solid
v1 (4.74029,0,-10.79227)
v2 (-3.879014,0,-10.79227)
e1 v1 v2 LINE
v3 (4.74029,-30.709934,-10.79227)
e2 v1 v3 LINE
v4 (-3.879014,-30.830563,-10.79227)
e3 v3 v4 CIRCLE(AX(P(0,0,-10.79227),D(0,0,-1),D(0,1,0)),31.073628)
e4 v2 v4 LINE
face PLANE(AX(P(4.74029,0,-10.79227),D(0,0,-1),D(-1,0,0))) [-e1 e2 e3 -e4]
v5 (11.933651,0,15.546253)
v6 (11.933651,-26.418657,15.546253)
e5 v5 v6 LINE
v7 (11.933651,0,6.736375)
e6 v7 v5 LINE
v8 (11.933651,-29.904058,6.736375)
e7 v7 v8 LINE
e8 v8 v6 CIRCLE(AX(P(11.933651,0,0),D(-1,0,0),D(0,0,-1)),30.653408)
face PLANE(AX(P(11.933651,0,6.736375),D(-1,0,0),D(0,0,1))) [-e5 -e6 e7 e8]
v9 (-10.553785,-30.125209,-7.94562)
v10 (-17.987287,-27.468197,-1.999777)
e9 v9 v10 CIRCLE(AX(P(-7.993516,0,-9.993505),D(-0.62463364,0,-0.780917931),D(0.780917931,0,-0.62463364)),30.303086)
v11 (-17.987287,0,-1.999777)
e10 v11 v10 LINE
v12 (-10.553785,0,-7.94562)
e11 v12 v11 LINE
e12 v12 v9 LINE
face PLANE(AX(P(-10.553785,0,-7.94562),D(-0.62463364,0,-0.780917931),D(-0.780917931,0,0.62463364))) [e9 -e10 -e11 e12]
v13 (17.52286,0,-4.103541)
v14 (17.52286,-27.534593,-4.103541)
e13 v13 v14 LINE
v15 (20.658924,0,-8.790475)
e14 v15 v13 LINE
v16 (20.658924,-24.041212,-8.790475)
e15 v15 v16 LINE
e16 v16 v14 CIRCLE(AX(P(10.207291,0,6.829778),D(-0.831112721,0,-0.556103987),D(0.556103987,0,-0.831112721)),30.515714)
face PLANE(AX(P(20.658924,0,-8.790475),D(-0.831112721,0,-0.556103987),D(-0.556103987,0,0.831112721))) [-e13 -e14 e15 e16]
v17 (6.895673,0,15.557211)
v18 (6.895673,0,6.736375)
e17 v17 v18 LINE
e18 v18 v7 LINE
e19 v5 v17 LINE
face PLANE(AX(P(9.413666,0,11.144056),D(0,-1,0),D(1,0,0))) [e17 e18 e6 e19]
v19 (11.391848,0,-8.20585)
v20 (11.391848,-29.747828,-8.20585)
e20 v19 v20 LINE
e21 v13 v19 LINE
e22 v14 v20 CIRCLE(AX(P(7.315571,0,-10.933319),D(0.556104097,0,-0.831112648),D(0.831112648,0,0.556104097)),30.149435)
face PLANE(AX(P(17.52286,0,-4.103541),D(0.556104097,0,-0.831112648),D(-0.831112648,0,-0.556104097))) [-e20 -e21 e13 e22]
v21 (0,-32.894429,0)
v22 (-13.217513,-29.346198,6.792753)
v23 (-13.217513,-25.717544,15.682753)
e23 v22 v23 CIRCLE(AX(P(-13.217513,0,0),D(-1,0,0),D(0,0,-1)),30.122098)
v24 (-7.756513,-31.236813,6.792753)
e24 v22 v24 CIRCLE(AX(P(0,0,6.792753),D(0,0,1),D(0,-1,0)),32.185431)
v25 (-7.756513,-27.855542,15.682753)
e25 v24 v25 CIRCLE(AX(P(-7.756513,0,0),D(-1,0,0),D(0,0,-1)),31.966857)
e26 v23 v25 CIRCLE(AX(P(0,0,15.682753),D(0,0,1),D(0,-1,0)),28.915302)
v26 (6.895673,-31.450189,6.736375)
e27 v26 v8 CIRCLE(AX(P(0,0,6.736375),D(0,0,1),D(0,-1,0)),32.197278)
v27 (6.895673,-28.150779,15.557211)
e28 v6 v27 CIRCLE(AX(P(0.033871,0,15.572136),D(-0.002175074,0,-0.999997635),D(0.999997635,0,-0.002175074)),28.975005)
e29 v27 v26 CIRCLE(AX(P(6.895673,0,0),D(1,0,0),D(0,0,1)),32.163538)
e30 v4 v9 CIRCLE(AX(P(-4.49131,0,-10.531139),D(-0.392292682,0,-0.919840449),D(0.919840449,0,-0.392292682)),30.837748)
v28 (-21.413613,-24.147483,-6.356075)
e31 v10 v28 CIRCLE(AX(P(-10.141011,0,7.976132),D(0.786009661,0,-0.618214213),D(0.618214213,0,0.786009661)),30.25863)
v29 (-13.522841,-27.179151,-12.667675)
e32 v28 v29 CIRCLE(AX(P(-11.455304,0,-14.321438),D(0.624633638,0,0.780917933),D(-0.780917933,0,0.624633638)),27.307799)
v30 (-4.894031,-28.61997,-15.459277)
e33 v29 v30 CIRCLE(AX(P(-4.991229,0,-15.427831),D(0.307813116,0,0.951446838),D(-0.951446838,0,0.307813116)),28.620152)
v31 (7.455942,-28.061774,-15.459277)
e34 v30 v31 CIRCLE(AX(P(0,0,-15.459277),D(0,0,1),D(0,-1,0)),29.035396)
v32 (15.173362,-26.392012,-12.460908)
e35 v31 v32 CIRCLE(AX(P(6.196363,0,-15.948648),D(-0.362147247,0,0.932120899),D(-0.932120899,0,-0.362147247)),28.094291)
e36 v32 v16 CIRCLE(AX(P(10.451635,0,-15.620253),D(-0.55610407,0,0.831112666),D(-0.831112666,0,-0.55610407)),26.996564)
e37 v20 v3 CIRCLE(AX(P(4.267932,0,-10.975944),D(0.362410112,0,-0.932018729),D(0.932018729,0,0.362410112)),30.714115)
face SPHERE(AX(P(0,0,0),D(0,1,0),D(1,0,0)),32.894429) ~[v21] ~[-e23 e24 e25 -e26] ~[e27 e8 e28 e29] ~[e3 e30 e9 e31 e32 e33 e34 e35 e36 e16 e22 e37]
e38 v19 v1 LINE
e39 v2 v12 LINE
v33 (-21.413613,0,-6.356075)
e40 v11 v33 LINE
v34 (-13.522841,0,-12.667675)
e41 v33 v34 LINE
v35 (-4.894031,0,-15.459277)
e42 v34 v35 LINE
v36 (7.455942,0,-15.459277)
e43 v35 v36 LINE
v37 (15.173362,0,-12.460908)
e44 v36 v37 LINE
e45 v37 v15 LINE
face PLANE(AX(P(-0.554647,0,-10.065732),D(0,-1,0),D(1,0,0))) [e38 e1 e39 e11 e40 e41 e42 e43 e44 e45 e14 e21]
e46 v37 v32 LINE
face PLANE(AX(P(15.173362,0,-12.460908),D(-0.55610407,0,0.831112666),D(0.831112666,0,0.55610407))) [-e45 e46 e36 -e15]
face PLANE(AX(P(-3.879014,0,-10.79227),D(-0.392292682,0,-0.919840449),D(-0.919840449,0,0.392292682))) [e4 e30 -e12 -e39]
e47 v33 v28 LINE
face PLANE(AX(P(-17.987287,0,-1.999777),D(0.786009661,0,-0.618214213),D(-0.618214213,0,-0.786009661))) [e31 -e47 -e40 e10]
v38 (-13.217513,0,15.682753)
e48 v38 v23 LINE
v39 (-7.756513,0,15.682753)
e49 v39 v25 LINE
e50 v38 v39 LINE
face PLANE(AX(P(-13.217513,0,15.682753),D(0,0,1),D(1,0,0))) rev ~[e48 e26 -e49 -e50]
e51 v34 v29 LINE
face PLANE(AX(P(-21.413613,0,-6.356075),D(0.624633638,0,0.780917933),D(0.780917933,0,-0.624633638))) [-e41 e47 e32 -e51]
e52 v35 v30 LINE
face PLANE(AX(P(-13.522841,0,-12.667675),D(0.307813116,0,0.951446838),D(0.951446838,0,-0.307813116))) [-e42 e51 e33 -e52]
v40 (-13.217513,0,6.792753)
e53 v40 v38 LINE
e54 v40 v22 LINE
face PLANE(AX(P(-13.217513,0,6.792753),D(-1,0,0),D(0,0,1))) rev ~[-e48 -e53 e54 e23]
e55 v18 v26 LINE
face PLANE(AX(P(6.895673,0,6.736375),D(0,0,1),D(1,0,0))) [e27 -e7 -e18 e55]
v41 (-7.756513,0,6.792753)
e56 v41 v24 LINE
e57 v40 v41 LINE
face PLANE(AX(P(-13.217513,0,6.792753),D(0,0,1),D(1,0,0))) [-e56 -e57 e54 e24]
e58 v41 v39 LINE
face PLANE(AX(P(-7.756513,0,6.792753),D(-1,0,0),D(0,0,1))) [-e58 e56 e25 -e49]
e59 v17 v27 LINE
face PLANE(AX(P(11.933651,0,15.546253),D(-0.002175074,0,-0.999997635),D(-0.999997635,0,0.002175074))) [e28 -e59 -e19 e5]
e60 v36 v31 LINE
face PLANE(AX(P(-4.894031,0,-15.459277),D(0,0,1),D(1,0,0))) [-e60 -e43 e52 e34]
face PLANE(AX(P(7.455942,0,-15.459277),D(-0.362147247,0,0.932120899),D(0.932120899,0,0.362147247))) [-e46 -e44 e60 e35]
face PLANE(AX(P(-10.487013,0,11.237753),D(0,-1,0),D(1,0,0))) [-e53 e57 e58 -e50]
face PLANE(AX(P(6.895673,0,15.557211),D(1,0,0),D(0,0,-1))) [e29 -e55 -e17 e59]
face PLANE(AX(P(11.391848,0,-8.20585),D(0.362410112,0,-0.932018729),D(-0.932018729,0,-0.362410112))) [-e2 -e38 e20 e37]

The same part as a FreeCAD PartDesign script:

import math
import FreeCAD as App
import Part
import Sketcher
from FreeCAD import Vector
Q = App.Units.Quantity

doc = App.newDocument("Part")
body = doc.addObject("PartDesign::Body", "Body")

# Sketch on XY plane
sketch1 = doc.addObject("Sketcher::SketchObject", "Sketch")
body.addObject(sketch1)
sketch1.AttachmentSupport = (doc.XY_Plane, [""])
sketch1.MapMode = "FlatFace"
sketch1.addGeometry([
    Part.LineSegment(Vector(0, 33, 0), Vector(0, -33, 0)),
    Part.ArcOfCircle(Part.Circle(Vector(0, 0, 0), Vector(0, 0, 1), 33), math.radians(-90), math.radians(90)),
], False)
sketch1.addConstraint([
    Sketcher.Constraint("Coincident", 0, 1, 1, 2),
    Sketcher.Constraint("Coincident", 1, 1, 0, 2),
    Sketcher.Constraint("Vertical", 0),
    Sketcher.Constraint("Coincident", 1, 3, -1, 1),
    Sketcher.Constraint("PointOnObject", 0, 1, -2),
    Sketcher.Constraint("Radius", 1, 32.894429),
])
revolution = doc.addObject("PartDesign::Revolution", "Revolution")
body.addObject(revolution)
revolution.Profile = sketch1
revolution.ReferenceAxis = (sketch1, ["V_Axis"])
revolution.Angle = 360

# Sketch on XZ plane
sketch2 = doc.addObject("Sketcher::SketchObject", "Sketch001")
body.addObject(sketch2)
sketch2.AttachmentSupport = (doc.XZ_Plane, [""])
sketch2.MapMode = "FlatFace"
sketch2.addGeometry([
    Part.LineSegment(Vector(-13, 16, 0), Vector(-13, 7, 0)),
    Part.LineSegment(Vector(-13, 7, 0), Vector(-8, 7, 0)),
    Part.LineSegment(Vector(-8, 7, 0), Vector(-8, 16, 0)),
    Part.LineSegment(Vector(-8, 16, 0), Vector(-13, 16, 0)),
], False)
sketch2.addConstraint([
    Sketcher.Constraint("Coincident", 0, 2, 1, 1),
    Sketcher.Constraint("Coincident", 1, 2, 2, 1),
    Sketcher.Constraint("Coincident", 2, 2, 3, 1),
    Sketcher.Constraint("Coincident", 3, 2, 0, 1),
    Sketcher.Constraint("Vertical", 0),
    Sketcher.Constraint("Horizontal", 1),
    Sketcher.Constraint("Vertical", 2),
    Sketcher.Constraint("Horizontal", 3),
    Sketcher.Constraint("DistanceY", 0, 2, 0, 1, Q("0.35 in")),
    Sketcher.Constraint("DistanceX", 1, 1, 1, 2, Q("0.215 in")),
    Sketcher.Constraint("DistanceX", 0, 2, -1, 1, 13.217513),
    Sketcher.Constraint("DistanceY", -1, 1, 0, 2, 6.792753),
])
pocket1 = doc.addObject("PartDesign::Pocket", "Pocket")
body.addObject(pocket1)
pocket1.Profile = sketch2
pocket1.Type = "ThroughAll"
pocket1.Reversed = True

# Sketch on XZ plane
sketch3 = doc.addObject("Sketcher::SketchObject", "Sketch002")
body.addObject(sketch3)
sketch3.AttachmentSupport = (doc.XZ_Plane, [""])
sketch3.MapMode = "FlatFace"
sketch3.addGeometry([
    Part.LineSegment(Vector(12, 16, 0), Vector(7, 16, 0)),
    Part.LineSegment(Vector(7, 16, 0), Vector(7, 7, 0)),
    Part.LineSegment(Vector(7, 7, 0), Vector(12, 7, 0)),
    Part.LineSegment(Vector(12, 7, 0), Vector(12, 16, 0)),
], False)
sketch3.addConstraint([
    Sketcher.Constraint("Coincident", 0, 2, 1, 1),
    Sketcher.Constraint("Coincident", 1, 2, 2, 1),
    Sketcher.Constraint("Coincident", 2, 2, 3, 1),
    Sketcher.Constraint("Coincident", 3, 2, 0, 1),
    Sketcher.Constraint("Vertical", 1),
    Sketcher.Constraint("Horizontal", 2),
    Sketcher.Constraint("Vertical", 3),
    Sketcher.Constraint("DistanceY", 3, 1, 3, 2, 8.809878),
    Sketcher.Constraint("Distance", 0, 5.03799),
    Sketcher.Constraint("DistanceY", 1, 2, 1, 1, 8.820836),
    Sketcher.Constraint("DistanceY", -1, 1, 0, 2, 15.557211),
    Sketcher.Constraint("DistanceX", -1, 1, 2, 2, 11.933651),
])
pocket2 = doc.addObject("PartDesign::Pocket", "Pocket001")
body.addObject(pocket2)
pocket2.Profile = sketch3
pocket2.Type = "ThroughAll"
pocket2.Reversed = True

# Sketch on XZ plane
sketch4 = doc.addObject("Sketcher::SketchObject", "Sketch003")
body.addObject(sketch4)
sketch4.AttachmentSupport = (doc.XZ_Plane, [""])
sketch4.MapMode = "FlatFace"
sketch4.addGeometry([
    Part.LineSegment(Vector(-11, -8, 0), Vector(-18, -2, 0)),  # 0
    Part.LineSegment(Vector(-18, -2, 0), Vector(-21, -6, 0)),  # 1
    Part.LineSegment(Vector(-21, -6, 0), Vector(-14, -13, 0)),  # 2
    Part.LineSegment(Vector(-14, -13, 0), Vector(-5, -15, 0)),  # 3
    Part.LineSegment(Vector(-5, -15, 0), Vector(7, -15, 0)),  # 4
    Part.LineSegment(Vector(7, -15, 0), Vector(15, -12, 0)),  # 5
    Part.LineSegment(Vector(15, -12, 0), Vector(21, -9, 0)),  # 6
    Part.LineSegment(Vector(21, -9, 0), Vector(18, -4, 0)),  # 7
    Part.LineSegment(Vector(18, -4, 0), Vector(11, -8, 0)),  # 8
    Part.LineSegment(Vector(11, -8, 0), Vector(5, -11, 0)),  # 9
    Part.LineSegment(Vector(5, -11, 0), Vector(-4, -11, 0)),  # 10
    Part.LineSegment(Vector(-4, -11, 0), Vector(-11, -8, 0)),  # 11
], False)
sketch4.addConstraint([
    Sketcher.Constraint("Coincident", 0, 2, 1, 1),
    Sketcher.Constraint("Coincident", 1, 2, 2, 1),
    Sketcher.Constraint("Coincident", 2, 2, 3, 1),
    Sketcher.Constraint("Coincident", 3, 2, 4, 1),
    Sketcher.Constraint("Coincident", 4, 2, 5, 1),
    Sketcher.Constraint("Coincident", 5, 2, 6, 1),
    Sketcher.Constraint("Coincident", 6, 2, 7, 1),
    Sketcher.Constraint("Coincident", 7, 2, 8, 1),
    Sketcher.Constraint("Coincident", 8, 2, 9, 1),
    Sketcher.Constraint("Coincident", 9, 2, 10, 1),
    Sketcher.Constraint("Coincident", 10, 2, 11, 1),
    Sketcher.Constraint("Coincident", 11, 2, 0, 1),
    Sketcher.Constraint("Horizontal", 4),
    Sketcher.Constraint("Horizontal", 10),
    Sketcher.Constraint("Parallel", 0, 2),
    Sketcher.Constraint("Perpendicular", 6, 7),
    Sketcher.Constraint("Perpendicular", 7, 8),
    Sketcher.Constraint("DistanceX", 5, 2, 7, 2, Q("0.0924999 in")),
    Sketcher.Constraint("DistanceY", 2, 2, 1, 2, 6.3116),
    Sketcher.Constraint("DistanceY", 3, 2, 0, 2, 13.4595),
    Sketcher.Constraint("DistanceY", 4, 2, 6, 2, 6.668802),
    Sketcher.Constraint("DistanceY", 2, 2, 6, 2, 3.8772),
    Sketcher.Constraint("DistanceX", 2, 2, 7, 2, 31.045701),
    Sketcher.Constraint("DistanceX", 0, 2, 11, 2, 7.433502),
    Sketcher.Constraint("Distance", 0, 9.518929),
    Sketcher.Constraint("Distance", 5, 8.27942),
    Sketcher.Constraint("Distance", 7, 5.639348),
    Sketcher.Constraint("Distance", 9, 7.136721),
    Sketcher.Constraint("DistanceX", 4, 1, 4, 2, 12.349973),
    Sketcher.Constraint("DistanceX", 10, 2, 10, 1, 8.619304),
    Sketcher.Constraint("DistanceX", 2, 2, -1, 1, 13.522841),
    Sketcher.Constraint("DistanceX", 3, 2, -1, 1, 4.894031),
    Sketcher.Constraint("DistanceY", 7, 2, -1, 1, 4.103541),
    Sketcher.Constraint("DistanceY", 8, 2, -1, 1, 8.20585),
    Sketcher.Constraint("DistanceX", -1, 1, 9, 2, 4.74029),
    Sketcher.Constraint("DistanceX", 0, 2, 4, 2, 25.443229),
])
pocket3 = doc.addObject("PartDesign::Pocket", "Pocket002")
body.addObject(pocket3)
pocket3.Profile = sketch4
pocket3.Type = "ThroughAll"
pocket3.Reversed = True

doc.recompute()
